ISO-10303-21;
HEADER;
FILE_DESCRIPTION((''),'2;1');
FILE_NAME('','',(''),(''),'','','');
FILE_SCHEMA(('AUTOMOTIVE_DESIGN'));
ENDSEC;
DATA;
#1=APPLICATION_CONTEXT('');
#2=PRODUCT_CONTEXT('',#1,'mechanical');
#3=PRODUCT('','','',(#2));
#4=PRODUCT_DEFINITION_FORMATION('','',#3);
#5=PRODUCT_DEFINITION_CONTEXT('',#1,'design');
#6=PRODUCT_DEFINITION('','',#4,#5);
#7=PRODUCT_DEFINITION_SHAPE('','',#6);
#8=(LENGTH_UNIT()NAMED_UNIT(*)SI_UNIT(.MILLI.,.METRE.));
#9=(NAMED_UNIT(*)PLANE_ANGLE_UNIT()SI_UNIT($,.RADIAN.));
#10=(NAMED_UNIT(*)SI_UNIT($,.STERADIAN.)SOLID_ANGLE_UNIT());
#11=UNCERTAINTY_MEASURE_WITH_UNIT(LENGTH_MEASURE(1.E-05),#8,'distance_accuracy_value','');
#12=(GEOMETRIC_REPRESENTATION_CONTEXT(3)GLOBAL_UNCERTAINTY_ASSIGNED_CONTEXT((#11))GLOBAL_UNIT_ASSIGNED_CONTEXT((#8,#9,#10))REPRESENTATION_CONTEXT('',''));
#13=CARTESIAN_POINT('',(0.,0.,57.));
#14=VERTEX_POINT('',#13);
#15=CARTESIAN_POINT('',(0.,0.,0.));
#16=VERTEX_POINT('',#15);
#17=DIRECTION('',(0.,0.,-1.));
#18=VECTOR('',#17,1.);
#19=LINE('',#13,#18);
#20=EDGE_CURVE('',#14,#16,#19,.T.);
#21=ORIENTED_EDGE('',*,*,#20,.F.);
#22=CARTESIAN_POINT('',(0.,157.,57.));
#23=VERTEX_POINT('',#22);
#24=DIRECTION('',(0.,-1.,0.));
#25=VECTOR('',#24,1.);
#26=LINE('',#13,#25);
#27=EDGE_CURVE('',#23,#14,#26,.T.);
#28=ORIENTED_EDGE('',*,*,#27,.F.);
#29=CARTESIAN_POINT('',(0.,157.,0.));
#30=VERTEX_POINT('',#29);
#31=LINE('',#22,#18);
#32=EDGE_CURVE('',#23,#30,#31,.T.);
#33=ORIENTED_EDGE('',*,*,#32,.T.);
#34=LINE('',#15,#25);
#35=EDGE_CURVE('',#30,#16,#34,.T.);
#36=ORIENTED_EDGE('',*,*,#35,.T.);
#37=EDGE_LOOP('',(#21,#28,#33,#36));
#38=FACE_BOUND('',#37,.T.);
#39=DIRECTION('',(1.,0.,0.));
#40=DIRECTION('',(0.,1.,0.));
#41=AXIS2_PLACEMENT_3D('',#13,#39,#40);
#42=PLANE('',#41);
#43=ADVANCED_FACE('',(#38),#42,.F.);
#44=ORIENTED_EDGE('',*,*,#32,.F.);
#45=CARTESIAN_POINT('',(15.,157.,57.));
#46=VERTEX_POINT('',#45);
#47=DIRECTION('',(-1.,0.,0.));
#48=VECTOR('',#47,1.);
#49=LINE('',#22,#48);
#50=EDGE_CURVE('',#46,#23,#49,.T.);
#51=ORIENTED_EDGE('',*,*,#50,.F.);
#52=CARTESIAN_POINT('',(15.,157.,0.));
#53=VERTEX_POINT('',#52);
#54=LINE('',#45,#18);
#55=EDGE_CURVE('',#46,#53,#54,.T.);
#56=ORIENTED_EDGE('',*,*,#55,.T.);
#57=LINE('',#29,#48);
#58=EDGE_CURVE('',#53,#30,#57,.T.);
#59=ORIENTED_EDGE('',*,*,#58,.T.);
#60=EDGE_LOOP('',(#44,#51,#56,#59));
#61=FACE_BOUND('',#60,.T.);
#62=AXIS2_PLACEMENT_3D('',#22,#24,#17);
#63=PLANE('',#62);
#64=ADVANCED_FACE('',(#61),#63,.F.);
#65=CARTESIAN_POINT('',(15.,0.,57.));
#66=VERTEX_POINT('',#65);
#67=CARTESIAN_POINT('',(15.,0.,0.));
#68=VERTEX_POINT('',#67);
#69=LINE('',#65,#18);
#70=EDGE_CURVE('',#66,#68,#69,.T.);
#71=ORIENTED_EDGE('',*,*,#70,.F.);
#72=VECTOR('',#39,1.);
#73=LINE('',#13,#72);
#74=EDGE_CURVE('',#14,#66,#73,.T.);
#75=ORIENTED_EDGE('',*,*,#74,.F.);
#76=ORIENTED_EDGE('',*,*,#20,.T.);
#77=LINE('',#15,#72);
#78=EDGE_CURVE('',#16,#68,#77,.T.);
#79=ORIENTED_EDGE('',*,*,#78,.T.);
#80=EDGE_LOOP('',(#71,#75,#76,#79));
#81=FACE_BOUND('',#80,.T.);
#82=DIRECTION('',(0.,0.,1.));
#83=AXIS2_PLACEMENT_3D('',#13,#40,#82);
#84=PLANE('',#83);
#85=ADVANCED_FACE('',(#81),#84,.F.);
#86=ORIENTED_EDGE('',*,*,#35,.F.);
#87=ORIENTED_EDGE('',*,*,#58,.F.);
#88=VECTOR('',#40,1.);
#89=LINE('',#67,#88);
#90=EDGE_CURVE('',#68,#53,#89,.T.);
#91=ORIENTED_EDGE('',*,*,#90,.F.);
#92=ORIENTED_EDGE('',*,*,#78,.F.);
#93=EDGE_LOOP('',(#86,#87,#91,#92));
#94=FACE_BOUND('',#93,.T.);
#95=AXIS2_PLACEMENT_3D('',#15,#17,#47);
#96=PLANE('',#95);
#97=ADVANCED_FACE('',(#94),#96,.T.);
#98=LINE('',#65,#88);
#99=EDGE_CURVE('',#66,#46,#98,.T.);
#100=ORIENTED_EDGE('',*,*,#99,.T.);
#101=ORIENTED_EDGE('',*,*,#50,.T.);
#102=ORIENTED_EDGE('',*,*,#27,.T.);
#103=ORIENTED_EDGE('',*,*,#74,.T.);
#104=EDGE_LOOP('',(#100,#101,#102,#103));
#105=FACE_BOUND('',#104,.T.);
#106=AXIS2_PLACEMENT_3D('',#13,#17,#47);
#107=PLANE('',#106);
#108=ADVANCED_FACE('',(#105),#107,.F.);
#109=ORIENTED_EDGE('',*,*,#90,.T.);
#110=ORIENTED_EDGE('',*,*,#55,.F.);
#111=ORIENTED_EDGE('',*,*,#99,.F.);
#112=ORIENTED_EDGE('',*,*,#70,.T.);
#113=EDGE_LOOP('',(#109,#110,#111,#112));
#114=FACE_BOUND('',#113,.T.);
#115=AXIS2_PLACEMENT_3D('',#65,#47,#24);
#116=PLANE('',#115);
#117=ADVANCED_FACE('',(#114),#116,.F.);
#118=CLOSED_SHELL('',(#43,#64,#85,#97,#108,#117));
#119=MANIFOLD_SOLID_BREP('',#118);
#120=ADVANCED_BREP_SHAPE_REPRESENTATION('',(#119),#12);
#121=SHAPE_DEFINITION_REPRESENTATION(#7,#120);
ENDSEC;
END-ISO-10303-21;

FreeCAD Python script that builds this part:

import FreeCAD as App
import Part
import Sketcher
from FreeCAD import Vector


def add_polygon(sketch, points):
    """Adds a closed chain of lines whose ends are joined by coincident constraints."""
    first, n = sketch.GeometryCount, len(points)
    for a, b in zip(points, points[1:] + points[:1]):
        sketch.addGeometry(Part.LineSegment(App.Vector(*a, 0), App.Vector(*b, 0)), False)
    for i in range(n):
        sketch.addConstraint(Sketcher.Constraint("Coincident", first + i, 2, first + (i + 1) % n, 1))

doc = App.newDocument("Part")
body = doc.addObject("PartDesign::Body", "Body")

# Sketch on XY plane
sketch1 = body.newObject("Sketcher::SketchObject", "Sketch")
sketch1.AttachmentSupport = (doc.getObject("XY_Plane"), [""])
sketch1.MapMode = "FlatFace"
add_polygon(sketch1, [(0, 157), (0, 0), (15, 0), (15, 157)])  # lines 0-3
sketch1.addConstraint([
    Sketcher.Constraint("Vertical", 0),
    Sketcher.Constraint("Horizontal", 1),
    Sketcher.Constraint("Vertical", 2),
    Sketcher.Constraint("Horizontal", 3),
    Sketcher.Constraint("Coincident", 0, 2, -1, 1),
    Sketcher.Constraint("DistanceX", 1, 1, 1, 2, 15.0),
    Sketcher.Constraint("DistanceY", 0, 2, 0, 1, 157.0),
])
pad1 = body.newObject("PartDesign::Pad", "Pad")
pad1.Profile = sketch1
pad1.Length = 57

doc.recompute()
